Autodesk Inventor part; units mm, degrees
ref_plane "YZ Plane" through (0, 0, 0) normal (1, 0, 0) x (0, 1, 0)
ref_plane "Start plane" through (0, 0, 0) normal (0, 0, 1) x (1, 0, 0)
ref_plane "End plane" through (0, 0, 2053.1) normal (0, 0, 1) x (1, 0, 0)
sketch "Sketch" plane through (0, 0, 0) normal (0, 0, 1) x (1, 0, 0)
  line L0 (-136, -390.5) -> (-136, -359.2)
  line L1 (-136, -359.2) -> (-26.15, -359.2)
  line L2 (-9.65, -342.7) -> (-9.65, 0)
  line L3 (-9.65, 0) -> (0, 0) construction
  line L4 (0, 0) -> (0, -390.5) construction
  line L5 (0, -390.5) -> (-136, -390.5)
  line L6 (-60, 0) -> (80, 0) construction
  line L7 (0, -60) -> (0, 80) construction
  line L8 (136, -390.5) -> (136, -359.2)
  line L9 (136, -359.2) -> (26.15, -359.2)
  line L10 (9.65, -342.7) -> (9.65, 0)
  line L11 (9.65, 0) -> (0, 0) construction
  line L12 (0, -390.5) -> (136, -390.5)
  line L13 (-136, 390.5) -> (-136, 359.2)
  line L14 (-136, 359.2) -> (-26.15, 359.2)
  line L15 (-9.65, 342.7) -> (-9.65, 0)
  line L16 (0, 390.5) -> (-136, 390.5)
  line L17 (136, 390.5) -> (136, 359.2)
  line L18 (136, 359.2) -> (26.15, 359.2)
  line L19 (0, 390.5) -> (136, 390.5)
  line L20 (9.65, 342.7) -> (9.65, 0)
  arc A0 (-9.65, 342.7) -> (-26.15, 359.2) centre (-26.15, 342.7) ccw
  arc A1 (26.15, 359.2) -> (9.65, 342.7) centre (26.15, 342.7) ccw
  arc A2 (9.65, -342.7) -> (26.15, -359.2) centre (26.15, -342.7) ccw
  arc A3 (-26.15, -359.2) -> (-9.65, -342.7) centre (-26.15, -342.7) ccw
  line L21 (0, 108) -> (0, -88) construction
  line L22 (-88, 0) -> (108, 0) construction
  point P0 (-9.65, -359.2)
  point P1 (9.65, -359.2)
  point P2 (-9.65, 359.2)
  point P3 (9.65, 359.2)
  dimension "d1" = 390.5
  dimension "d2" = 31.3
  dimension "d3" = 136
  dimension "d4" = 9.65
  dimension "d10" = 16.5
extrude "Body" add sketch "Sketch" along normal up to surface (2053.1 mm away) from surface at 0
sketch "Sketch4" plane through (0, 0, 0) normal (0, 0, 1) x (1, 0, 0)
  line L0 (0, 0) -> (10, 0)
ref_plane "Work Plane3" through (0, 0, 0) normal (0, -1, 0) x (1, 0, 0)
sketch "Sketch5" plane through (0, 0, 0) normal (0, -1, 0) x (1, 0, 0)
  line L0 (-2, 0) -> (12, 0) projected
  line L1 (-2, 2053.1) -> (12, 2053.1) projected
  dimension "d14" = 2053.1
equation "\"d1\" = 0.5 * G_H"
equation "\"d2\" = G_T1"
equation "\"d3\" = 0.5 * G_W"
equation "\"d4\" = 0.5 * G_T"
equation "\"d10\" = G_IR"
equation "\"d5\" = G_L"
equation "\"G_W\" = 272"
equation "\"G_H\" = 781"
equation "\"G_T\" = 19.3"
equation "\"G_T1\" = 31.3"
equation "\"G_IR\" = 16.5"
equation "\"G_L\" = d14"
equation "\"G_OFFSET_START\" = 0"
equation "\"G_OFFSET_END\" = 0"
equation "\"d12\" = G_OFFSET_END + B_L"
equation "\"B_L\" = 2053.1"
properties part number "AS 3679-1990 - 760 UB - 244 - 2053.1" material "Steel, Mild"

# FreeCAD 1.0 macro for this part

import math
import FreeCAD as App
import Part
import Sketcher

V = App.Vector
Q = App.Units.Quantity

doc = App.newDocument("Part")
body = doc.addObject("PartDesign::Body", "Body")

sketch1 = body.newObject("Sketcher::SketchObject", "Sketch")
sketch1.AttachmentSupport = (doc.getObject("XY_Plane"), [""])
sketch1.MapMode = "FlatFace"
sketch1.addGeometry([
    Part.LineSegment(V(-136, -359, 0), V(-136, -390, 0)),
    Part.LineSegment(V(-136, -390, 0), V(136, -390, 0)),
    Part.LineSegment(V(136, -390, 0), V(136, -359, 0)),
    Part.LineSegment(V(136, -359, 0), V(26, -359, 0)),
    Part.ArcOfCircle(Part.Circle(V(26, -343, 0), V(0, 0, 1), 16), math.radians(180), math.radians(270)),
    Part.LineSegment(V(10, -343, 0), V(10, 343, 0)),
    Part.ArcOfCircle(Part.Circle(V(26, 343, 0), V(0, 0, 1), 16), math.radians(90), math.radians(180)),
    Part.LineSegment(V(26, 359, 0), V(136, 359, 0)),
    Part.LineSegment(V(136, 359, 0), V(136, 390, 0)),
    Part.LineSegment(V(136, 390, 0), V(-136, 390, 0)),
    Part.LineSegment(V(-136, 390, 0), V(-136, 359, 0)),
    Part.LineSegment(V(-136, 359, 0), V(-26, 359, 0)),
    Part.ArcOfCircle(Part.Circle(V(-26, 343, 0), V(0, 0, 1), 16), math.radians(0), math.radians(90)),
    Part.LineSegment(V(-10, 343, 0), V(-10, -343, 0)),
    Part.ArcOfCircle(Part.Circle(V(-26, -343, 0), V(0, 0, 1), 16), math.radians(-90), math.radians(0)),
    Part.LineSegment(V(-26, -359, 0), V(-136, -359, 0)),
], False)
sketch1.addConstraint([
    Sketcher.Constraint("Coincident", 0, 2, 1, 1),
    Sketcher.Constraint("Coincident", 1, 2, 2, 1),
    Sketcher.Constraint("Coincident", 2, 2, 3, 1),
    Sketcher.Constraint("Tangent", 3, 2, 4, 2),
    Sketcher.Constraint("Tangent", 4, 1, 5, 1),
    Sketcher.Constraint("Tangent", 5, 2, 6, 2),
    Sketcher.Constraint("Tangent", 6, 1, 7, 1),
    Sketcher.Constraint("Coincident", 7, 2, 8, 1),
    Sketcher.Constraint("Coincident", 8, 2, 9, 1),
    Sketcher.Constraint("Coincident", 9, 2, 10, 1),
    Sketcher.Constraint("Coincident", 10, 2, 11, 1),
    Sketcher.Constraint("Tangent", 11, 2, 12, 2),
    Sketcher.Constraint("Tangent", 12, 1, 13, 1),
    Sketcher.Constraint("Tangent", 13, 2, 14, 2),
    Sketcher.Constraint("Tangent", 14, 1, 15, 1),
    Sketcher.Constraint("Coincident", 15, 2, 0, 1),
    Sketcher.Constraint("Vertical", 0),
    Sketcher.Constraint("Horizontal", 1),
    Sketcher.Constraint("Vertical", 2),
    Sketcher.Constraint("Horizontal", 3),
    Sketcher.Constraint("Vertical", 5),
    Sketcher.Constraint("Horizontal", 7),
    Sketcher.Constraint("Vertical", 8),
    Sketcher.Constraint("Horizontal", 9),
    Sketcher.Constraint("Vertical", 10),
    Sketcher.Constraint("Horizontal", 11),
    Sketcher.Constraint("Vertical", 13),
    Sketcher.Constraint("Horizontal", 15),
    Sketcher.Constraint("Equal", 4, 6),
    Sketcher.Constraint("Equal", 6, 12),
    Sketcher.Constraint("Equal", 12, 14),
    Sketcher.Constraint("Symmetric", 4, 3, 12, 3, -1, 1),
    Sketcher.Constraint("Symmetric", 0, 2, 8, 2, -1, 1),
    Sketcher.Constraint("Symmetric", 7, 2, 10, 2, -2),
    Sketcher.Constraint("Symmetric", 2, 2, 15, 2, -2),
    Sketcher.Constraint("Radius", 4, Q("16.5 mm")),
    Sketcher.Constraint("DistanceY", 0, 2, 0, 1, Q("31.3 mm")),
    Sketcher.Constraint("DistanceX", 0, 2, -1, 1, Q("136 mm")),
    Sketcher.Constraint("DistanceY", 0, 2, -1, 1, Q("390.5 mm")),
    Sketcher.Constraint("DistanceX", -1, 1, 4, 1, Q("9.65 mm")),
])
pad1 = body.newObject("PartDesign::Pad", "Pad")
pad1.Profile = sketch1
pad1.Length = 2053.1

doc.recompute()
